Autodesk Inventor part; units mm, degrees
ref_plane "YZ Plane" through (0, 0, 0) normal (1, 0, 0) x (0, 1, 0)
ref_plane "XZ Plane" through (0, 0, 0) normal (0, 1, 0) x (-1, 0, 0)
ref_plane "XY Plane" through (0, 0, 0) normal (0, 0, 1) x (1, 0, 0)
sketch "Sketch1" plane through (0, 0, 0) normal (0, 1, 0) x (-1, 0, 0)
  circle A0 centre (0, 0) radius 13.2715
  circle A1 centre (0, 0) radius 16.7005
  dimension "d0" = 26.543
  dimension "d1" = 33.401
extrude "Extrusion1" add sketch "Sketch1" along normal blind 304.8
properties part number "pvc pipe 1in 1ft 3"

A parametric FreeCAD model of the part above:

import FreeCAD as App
import Part
import Sketcher

V = App.Vector
Q = App.Units.Quantity

doc = App.newDocument("Part")
body = doc.addObject("PartDesign::Body", "Body")

# Sketch on XZ plane
sketch1 = body.newObject("Sketcher::SketchObject", "Sketch")
sketch1.AttachmentSupport = (doc.getObject("XZ_Plane"), [""])
sketch1.MapMode = "FlatFace"
sketch1.addGeometry([
    Part.Circle(V(0, 0, 0), V(0, 0, 1), 17),
    Part.Circle(V(0, 0, 0), V(0, 0, 1), 13),
], False)
sketch1.addConstraint([
    Sketcher.Constraint("Coincident", 0, 3, -1, 1),
    Sketcher.Constraint("Coincident", 1, 3, -1, 1),
    Sketcher.Constraint("Diameter", 0, Q("1.315 in")),
    Sketcher.Constraint("Diameter", 1, Q("1.045 in")),
])
pad1 = body.newObject("PartDesign::Pad", "Pad")
pad1.Profile = sketch1
pad1.Length = Q("12 in")
pad1.Reversed = True

doc.recompute()
